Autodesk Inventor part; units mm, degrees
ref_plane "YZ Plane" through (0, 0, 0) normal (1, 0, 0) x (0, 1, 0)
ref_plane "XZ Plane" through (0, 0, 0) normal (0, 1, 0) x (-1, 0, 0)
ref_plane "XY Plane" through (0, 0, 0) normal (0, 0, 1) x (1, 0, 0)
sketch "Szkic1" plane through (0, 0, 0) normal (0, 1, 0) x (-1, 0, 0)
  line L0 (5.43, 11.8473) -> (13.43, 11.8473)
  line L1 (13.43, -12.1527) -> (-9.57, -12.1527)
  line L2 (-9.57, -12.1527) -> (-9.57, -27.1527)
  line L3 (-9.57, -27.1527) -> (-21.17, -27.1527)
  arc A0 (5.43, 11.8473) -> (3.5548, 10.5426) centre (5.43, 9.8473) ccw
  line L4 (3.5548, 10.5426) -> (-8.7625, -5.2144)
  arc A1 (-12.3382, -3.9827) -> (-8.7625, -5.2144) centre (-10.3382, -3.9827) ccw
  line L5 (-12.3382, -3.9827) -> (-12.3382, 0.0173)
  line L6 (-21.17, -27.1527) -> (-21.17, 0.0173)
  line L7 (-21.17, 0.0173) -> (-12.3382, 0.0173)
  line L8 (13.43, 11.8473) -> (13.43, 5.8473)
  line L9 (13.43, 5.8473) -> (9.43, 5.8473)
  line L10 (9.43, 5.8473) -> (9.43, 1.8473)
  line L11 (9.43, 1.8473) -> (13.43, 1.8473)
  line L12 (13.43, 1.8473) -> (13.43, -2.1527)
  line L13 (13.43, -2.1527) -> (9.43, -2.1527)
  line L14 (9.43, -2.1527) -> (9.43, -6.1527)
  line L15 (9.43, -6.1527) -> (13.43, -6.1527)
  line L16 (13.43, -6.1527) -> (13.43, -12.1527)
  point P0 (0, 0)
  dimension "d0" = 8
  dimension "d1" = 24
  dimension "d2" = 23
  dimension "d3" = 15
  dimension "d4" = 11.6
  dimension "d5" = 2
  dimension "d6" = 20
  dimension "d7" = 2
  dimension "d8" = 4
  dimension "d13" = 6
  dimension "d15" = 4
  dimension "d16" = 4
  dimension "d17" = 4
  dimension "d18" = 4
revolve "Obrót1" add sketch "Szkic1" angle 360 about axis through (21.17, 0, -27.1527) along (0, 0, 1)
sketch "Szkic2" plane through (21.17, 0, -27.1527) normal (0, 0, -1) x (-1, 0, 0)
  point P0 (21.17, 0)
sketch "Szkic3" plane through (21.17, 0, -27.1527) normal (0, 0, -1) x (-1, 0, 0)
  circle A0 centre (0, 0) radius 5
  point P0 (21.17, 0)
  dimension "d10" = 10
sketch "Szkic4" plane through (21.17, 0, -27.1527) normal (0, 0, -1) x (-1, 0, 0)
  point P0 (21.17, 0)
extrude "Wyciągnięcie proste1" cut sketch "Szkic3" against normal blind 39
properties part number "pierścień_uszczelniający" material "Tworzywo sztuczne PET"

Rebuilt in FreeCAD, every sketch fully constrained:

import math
import FreeCAD as App
import Part
import Sketcher

V = App.Vector
Q = App.Units.Quantity

doc = App.newDocument("Part")
body = doc.addObject("PartDesign::Body", "Body")

sketch1 = body.newObject("Sketcher::SketchObject", "Sketch")
sketch1.AttachmentSupport = (doc.getObject("XZ_Plane"), [""])
sketch1.MapMode = "FlatFace"
sketch1.addGeometry([
    Part.LineSegment(V(-13.4, 11.8, 0), V(-5.4, 11.8, 0)),
    Part.ArcOfCircle(Part.Circle(V(-5.4, 9.8, 0), V(0, 0, 1), 2), math.radians(20), math.radians(90)),
    Part.LineSegment(V(-3.6, 10.5, 0), V(8.8, -5.2, 0)),
    Part.ArcOfCircle(Part.Circle(V(10.3, -4, 0), V(0, 0, 1), 2), math.radians(-142), math.radians(0)),
    Part.LineSegment(V(12.3, -4, 0), V(12.3, 0, 0)),
    Part.LineSegment(V(12.3, 0, 0), V(21.2, 0, 0)),
    Part.LineSegment(V(21.2, 0, 0), V(21.2, -27.2, 0)),
    Part.LineSegment(V(21.2, -27.2, 0), V(9.6, -27.2, 0)),
    Part.LineSegment(V(9.6, -27.2, 0), V(9.6, -12.2, 0)),
    Part.LineSegment(V(9.6, -12.2, 0), V(-13.4, -12.2, 0)),
    Part.LineSegment(V(-13.4, -12.2, 0), V(-13.4, -6.2, 0)),
    Part.LineSegment(V(-13.4, -6.2, 0), V(-9.4, -6.2, 0)),
    Part.LineSegment(V(-9.4, -6.2, 0), V(-9.4, -2.2, 0)),
    Part.LineSegment(V(-9.4, -2.2, 0), V(-13.4, -2.2, 0)),
    Part.LineSegment(V(-13.4, -2.2, 0), V(-13.4, 1.8, 0)),
    Part.LineSegment(V(-13.4, 1.8, 0), V(-9.4, 1.8, 0)),
    Part.LineSegment(V(-9.4, 1.8, 0), V(-9.4, 5.8, 0)),
    Part.LineSegment(V(-9.4, 5.8, 0), V(-13.4, 5.8, 0)),
    Part.LineSegment(V(-13.4, 5.8, 0), V(-13.4, 11.8, 0)),
], False)
sketch1.addGeometry(Part.LineSegment(V(21.2, -27.2, 0), V(21.2, 11.8, 0)), True)
sketch1.addConstraint([
    Sketcher.Constraint("Tangent", 0, 2, 1, 2),
    Sketcher.Constraint("Coincident", 1, 1, 2, 1),
    Sketcher.Constraint("Tangent", 2, 2, 3, 1),
    Sketcher.Constraint("Tangent", 3, 2, 4, 1),
    Sketcher.Constraint("Coincident", 4, 2, 5, 1),
    Sketcher.Constraint("Coincident", 5, 2, 6, 1),
    Sketcher.Constraint("Coincident", 6, 2, 7, 1),
    Sketcher.Constraint("Coincident", 7, 2, 8, 1),
    Sketcher.Constraint("Coincident", 8, 2, 9, 1),
    Sketcher.Constraint("Coincident", 9, 2, 10, 1),
    Sketcher.Constraint("Coincident", 10, 2, 11, 1),
    Sketcher.Constraint("Coincident", 11, 2, 12, 1),
    Sketcher.Constraint("Coincident", 12, 2, 13, 1),
    Sketcher.Constraint("Coincident", 13, 2, 14, 1),
    Sketcher.Constraint("Coincident", 14, 2, 15, 1),
    Sketcher.Constraint("Coincident", 15, 2, 16, 1),
    Sketcher.Constraint("Coincident", 16, 2, 17, 1),
    Sketcher.Constraint("Coincident", 17, 2, 18, 1),
    Sketcher.Constraint("Coincident", 18, 2, 0, 1),
    Sketcher.Constraint("Horizontal", 0),
    Sketcher.Constraint("Vertical", 4),
    Sketcher.Constraint("Horizontal", 5),
    Sketcher.Constraint("Vertical", 6),
    Sketcher.Constraint("Horizontal", 7),
    Sketcher.Constraint("Vertical", 8),
    Sketcher.Constraint("Horizontal", 9),
    Sketcher.Constraint("Vertical", 10),
    Sketcher.Constraint("Horizontal", 11),
    Sketcher.Constraint("Vertical", 12),
    Sketcher.Constraint("Horizontal", 13),
    Sketcher.Constraint("Vertical", 14),
    Sketcher.Constraint("Horizontal", 15),
    Sketcher.Constraint("Vertical", 16),
    Sketcher.Constraint("Horizontal", 17),
    Sketcher.Constraint("Vertical", 18),
    Sketcher.Constraint("Vertical", 19),
    Sketcher.Constraint("Coincident", 19, 1, 6, 2),
    Sketcher.Constraint("Equal", 1, 3),
    Sketcher.Constraint("Horizontal", 18, 2, 19, 2),
    Sketcher.Constraint("Vertical", 10, 2, 13, 2),
    Sketcher.Constraint("Vertical", 12, 2, 15, 2),
    Sketcher.Constraint("Vertical", 14, 2, 17, 2),
    Sketcher.Constraint("Equal", 17, 4),
    Sketcher.Constraint("Equal", 4, 12),
    Sketcher.Constraint("Equal", 12, 14),
    Sketcher.Constraint("Equal", 14, 16),
    Sketcher.Constraint("Equal", 10, 18),
    Sketcher.Constraint("Radius", 1, Q("2 mm")),
    Sketcher.Constraint("DistanceX", 0, 1, 0, 2, Q("8 mm")),
    Sketcher.Constraint("DistanceX", 9, 2, 9, 1, Q("23 mm")),
    Sketcher.Constraint("DistanceX", 11, 1, 11, 2, Q("4 mm")),
    Sketcher.Constraint("DistanceY", 8, 1, 8, 2, Q("15 mm")),
    Sketcher.Constraint("DistanceY", 10, 1, 10, 2, Q("6 mm")),
    Sketcher.Constraint("Distance", 2, Q("20 mm")),
    Sketcher.Constraint("DistanceX", 7, 2, 7, 1, Q("11.6 mm")),
    Sketcher.Constraint("DistanceY", 6, 2, 6, 1, Q("27.17 mm")),
    Sketcher.Constraint("DistanceX", 1, 3, -1, 1, Q("5.43 mm")),
    Sketcher.Constraint("DistanceX", 5, 1, 5, 2, Q("8.8318 mm")),
    Sketcher.Constraint("DistanceY", -1, 1, 1, 3, Q("9.8473 mm")),
])
revolution = body.newObject("PartDesign::Revolution", "Revolution")
revolution.Profile = sketch1
revolution.ReferenceAxis = (sketch1, ["Axis0"])
revolution.Angle = 360

sketch2 = body.newObject("Sketcher::SketchObject", "Sketch001")
sketch2.AttachmentSupport = (doc.getObject("XY_Plane"), [""])
sketch2.MapMode = "FlatFace"
sketch2.AttachmentOffset = App.Placement(V(0, 0, -27.1527), App.Rotation())
sketch2.addGeometry(Part.Circle(V(21, 0, 0), V(0, 0, 1), 5), False)
sketch2.addConstraint([
    Sketcher.Constraint("PointOnObject", 0, 3, -1),
    Sketcher.Constraint("Diameter", 0, Q("10 mm")),
    Sketcher.Constraint("DistanceX", -1, 1, 0, 3, Q("21.17 mm")),
])
pocket1 = body.newObject("PartDesign::Pocket", "Pocket")
pocket1.Profile = sketch2
pocket1.Length = 39
pocket1.Reversed = True

doc.recompute()
